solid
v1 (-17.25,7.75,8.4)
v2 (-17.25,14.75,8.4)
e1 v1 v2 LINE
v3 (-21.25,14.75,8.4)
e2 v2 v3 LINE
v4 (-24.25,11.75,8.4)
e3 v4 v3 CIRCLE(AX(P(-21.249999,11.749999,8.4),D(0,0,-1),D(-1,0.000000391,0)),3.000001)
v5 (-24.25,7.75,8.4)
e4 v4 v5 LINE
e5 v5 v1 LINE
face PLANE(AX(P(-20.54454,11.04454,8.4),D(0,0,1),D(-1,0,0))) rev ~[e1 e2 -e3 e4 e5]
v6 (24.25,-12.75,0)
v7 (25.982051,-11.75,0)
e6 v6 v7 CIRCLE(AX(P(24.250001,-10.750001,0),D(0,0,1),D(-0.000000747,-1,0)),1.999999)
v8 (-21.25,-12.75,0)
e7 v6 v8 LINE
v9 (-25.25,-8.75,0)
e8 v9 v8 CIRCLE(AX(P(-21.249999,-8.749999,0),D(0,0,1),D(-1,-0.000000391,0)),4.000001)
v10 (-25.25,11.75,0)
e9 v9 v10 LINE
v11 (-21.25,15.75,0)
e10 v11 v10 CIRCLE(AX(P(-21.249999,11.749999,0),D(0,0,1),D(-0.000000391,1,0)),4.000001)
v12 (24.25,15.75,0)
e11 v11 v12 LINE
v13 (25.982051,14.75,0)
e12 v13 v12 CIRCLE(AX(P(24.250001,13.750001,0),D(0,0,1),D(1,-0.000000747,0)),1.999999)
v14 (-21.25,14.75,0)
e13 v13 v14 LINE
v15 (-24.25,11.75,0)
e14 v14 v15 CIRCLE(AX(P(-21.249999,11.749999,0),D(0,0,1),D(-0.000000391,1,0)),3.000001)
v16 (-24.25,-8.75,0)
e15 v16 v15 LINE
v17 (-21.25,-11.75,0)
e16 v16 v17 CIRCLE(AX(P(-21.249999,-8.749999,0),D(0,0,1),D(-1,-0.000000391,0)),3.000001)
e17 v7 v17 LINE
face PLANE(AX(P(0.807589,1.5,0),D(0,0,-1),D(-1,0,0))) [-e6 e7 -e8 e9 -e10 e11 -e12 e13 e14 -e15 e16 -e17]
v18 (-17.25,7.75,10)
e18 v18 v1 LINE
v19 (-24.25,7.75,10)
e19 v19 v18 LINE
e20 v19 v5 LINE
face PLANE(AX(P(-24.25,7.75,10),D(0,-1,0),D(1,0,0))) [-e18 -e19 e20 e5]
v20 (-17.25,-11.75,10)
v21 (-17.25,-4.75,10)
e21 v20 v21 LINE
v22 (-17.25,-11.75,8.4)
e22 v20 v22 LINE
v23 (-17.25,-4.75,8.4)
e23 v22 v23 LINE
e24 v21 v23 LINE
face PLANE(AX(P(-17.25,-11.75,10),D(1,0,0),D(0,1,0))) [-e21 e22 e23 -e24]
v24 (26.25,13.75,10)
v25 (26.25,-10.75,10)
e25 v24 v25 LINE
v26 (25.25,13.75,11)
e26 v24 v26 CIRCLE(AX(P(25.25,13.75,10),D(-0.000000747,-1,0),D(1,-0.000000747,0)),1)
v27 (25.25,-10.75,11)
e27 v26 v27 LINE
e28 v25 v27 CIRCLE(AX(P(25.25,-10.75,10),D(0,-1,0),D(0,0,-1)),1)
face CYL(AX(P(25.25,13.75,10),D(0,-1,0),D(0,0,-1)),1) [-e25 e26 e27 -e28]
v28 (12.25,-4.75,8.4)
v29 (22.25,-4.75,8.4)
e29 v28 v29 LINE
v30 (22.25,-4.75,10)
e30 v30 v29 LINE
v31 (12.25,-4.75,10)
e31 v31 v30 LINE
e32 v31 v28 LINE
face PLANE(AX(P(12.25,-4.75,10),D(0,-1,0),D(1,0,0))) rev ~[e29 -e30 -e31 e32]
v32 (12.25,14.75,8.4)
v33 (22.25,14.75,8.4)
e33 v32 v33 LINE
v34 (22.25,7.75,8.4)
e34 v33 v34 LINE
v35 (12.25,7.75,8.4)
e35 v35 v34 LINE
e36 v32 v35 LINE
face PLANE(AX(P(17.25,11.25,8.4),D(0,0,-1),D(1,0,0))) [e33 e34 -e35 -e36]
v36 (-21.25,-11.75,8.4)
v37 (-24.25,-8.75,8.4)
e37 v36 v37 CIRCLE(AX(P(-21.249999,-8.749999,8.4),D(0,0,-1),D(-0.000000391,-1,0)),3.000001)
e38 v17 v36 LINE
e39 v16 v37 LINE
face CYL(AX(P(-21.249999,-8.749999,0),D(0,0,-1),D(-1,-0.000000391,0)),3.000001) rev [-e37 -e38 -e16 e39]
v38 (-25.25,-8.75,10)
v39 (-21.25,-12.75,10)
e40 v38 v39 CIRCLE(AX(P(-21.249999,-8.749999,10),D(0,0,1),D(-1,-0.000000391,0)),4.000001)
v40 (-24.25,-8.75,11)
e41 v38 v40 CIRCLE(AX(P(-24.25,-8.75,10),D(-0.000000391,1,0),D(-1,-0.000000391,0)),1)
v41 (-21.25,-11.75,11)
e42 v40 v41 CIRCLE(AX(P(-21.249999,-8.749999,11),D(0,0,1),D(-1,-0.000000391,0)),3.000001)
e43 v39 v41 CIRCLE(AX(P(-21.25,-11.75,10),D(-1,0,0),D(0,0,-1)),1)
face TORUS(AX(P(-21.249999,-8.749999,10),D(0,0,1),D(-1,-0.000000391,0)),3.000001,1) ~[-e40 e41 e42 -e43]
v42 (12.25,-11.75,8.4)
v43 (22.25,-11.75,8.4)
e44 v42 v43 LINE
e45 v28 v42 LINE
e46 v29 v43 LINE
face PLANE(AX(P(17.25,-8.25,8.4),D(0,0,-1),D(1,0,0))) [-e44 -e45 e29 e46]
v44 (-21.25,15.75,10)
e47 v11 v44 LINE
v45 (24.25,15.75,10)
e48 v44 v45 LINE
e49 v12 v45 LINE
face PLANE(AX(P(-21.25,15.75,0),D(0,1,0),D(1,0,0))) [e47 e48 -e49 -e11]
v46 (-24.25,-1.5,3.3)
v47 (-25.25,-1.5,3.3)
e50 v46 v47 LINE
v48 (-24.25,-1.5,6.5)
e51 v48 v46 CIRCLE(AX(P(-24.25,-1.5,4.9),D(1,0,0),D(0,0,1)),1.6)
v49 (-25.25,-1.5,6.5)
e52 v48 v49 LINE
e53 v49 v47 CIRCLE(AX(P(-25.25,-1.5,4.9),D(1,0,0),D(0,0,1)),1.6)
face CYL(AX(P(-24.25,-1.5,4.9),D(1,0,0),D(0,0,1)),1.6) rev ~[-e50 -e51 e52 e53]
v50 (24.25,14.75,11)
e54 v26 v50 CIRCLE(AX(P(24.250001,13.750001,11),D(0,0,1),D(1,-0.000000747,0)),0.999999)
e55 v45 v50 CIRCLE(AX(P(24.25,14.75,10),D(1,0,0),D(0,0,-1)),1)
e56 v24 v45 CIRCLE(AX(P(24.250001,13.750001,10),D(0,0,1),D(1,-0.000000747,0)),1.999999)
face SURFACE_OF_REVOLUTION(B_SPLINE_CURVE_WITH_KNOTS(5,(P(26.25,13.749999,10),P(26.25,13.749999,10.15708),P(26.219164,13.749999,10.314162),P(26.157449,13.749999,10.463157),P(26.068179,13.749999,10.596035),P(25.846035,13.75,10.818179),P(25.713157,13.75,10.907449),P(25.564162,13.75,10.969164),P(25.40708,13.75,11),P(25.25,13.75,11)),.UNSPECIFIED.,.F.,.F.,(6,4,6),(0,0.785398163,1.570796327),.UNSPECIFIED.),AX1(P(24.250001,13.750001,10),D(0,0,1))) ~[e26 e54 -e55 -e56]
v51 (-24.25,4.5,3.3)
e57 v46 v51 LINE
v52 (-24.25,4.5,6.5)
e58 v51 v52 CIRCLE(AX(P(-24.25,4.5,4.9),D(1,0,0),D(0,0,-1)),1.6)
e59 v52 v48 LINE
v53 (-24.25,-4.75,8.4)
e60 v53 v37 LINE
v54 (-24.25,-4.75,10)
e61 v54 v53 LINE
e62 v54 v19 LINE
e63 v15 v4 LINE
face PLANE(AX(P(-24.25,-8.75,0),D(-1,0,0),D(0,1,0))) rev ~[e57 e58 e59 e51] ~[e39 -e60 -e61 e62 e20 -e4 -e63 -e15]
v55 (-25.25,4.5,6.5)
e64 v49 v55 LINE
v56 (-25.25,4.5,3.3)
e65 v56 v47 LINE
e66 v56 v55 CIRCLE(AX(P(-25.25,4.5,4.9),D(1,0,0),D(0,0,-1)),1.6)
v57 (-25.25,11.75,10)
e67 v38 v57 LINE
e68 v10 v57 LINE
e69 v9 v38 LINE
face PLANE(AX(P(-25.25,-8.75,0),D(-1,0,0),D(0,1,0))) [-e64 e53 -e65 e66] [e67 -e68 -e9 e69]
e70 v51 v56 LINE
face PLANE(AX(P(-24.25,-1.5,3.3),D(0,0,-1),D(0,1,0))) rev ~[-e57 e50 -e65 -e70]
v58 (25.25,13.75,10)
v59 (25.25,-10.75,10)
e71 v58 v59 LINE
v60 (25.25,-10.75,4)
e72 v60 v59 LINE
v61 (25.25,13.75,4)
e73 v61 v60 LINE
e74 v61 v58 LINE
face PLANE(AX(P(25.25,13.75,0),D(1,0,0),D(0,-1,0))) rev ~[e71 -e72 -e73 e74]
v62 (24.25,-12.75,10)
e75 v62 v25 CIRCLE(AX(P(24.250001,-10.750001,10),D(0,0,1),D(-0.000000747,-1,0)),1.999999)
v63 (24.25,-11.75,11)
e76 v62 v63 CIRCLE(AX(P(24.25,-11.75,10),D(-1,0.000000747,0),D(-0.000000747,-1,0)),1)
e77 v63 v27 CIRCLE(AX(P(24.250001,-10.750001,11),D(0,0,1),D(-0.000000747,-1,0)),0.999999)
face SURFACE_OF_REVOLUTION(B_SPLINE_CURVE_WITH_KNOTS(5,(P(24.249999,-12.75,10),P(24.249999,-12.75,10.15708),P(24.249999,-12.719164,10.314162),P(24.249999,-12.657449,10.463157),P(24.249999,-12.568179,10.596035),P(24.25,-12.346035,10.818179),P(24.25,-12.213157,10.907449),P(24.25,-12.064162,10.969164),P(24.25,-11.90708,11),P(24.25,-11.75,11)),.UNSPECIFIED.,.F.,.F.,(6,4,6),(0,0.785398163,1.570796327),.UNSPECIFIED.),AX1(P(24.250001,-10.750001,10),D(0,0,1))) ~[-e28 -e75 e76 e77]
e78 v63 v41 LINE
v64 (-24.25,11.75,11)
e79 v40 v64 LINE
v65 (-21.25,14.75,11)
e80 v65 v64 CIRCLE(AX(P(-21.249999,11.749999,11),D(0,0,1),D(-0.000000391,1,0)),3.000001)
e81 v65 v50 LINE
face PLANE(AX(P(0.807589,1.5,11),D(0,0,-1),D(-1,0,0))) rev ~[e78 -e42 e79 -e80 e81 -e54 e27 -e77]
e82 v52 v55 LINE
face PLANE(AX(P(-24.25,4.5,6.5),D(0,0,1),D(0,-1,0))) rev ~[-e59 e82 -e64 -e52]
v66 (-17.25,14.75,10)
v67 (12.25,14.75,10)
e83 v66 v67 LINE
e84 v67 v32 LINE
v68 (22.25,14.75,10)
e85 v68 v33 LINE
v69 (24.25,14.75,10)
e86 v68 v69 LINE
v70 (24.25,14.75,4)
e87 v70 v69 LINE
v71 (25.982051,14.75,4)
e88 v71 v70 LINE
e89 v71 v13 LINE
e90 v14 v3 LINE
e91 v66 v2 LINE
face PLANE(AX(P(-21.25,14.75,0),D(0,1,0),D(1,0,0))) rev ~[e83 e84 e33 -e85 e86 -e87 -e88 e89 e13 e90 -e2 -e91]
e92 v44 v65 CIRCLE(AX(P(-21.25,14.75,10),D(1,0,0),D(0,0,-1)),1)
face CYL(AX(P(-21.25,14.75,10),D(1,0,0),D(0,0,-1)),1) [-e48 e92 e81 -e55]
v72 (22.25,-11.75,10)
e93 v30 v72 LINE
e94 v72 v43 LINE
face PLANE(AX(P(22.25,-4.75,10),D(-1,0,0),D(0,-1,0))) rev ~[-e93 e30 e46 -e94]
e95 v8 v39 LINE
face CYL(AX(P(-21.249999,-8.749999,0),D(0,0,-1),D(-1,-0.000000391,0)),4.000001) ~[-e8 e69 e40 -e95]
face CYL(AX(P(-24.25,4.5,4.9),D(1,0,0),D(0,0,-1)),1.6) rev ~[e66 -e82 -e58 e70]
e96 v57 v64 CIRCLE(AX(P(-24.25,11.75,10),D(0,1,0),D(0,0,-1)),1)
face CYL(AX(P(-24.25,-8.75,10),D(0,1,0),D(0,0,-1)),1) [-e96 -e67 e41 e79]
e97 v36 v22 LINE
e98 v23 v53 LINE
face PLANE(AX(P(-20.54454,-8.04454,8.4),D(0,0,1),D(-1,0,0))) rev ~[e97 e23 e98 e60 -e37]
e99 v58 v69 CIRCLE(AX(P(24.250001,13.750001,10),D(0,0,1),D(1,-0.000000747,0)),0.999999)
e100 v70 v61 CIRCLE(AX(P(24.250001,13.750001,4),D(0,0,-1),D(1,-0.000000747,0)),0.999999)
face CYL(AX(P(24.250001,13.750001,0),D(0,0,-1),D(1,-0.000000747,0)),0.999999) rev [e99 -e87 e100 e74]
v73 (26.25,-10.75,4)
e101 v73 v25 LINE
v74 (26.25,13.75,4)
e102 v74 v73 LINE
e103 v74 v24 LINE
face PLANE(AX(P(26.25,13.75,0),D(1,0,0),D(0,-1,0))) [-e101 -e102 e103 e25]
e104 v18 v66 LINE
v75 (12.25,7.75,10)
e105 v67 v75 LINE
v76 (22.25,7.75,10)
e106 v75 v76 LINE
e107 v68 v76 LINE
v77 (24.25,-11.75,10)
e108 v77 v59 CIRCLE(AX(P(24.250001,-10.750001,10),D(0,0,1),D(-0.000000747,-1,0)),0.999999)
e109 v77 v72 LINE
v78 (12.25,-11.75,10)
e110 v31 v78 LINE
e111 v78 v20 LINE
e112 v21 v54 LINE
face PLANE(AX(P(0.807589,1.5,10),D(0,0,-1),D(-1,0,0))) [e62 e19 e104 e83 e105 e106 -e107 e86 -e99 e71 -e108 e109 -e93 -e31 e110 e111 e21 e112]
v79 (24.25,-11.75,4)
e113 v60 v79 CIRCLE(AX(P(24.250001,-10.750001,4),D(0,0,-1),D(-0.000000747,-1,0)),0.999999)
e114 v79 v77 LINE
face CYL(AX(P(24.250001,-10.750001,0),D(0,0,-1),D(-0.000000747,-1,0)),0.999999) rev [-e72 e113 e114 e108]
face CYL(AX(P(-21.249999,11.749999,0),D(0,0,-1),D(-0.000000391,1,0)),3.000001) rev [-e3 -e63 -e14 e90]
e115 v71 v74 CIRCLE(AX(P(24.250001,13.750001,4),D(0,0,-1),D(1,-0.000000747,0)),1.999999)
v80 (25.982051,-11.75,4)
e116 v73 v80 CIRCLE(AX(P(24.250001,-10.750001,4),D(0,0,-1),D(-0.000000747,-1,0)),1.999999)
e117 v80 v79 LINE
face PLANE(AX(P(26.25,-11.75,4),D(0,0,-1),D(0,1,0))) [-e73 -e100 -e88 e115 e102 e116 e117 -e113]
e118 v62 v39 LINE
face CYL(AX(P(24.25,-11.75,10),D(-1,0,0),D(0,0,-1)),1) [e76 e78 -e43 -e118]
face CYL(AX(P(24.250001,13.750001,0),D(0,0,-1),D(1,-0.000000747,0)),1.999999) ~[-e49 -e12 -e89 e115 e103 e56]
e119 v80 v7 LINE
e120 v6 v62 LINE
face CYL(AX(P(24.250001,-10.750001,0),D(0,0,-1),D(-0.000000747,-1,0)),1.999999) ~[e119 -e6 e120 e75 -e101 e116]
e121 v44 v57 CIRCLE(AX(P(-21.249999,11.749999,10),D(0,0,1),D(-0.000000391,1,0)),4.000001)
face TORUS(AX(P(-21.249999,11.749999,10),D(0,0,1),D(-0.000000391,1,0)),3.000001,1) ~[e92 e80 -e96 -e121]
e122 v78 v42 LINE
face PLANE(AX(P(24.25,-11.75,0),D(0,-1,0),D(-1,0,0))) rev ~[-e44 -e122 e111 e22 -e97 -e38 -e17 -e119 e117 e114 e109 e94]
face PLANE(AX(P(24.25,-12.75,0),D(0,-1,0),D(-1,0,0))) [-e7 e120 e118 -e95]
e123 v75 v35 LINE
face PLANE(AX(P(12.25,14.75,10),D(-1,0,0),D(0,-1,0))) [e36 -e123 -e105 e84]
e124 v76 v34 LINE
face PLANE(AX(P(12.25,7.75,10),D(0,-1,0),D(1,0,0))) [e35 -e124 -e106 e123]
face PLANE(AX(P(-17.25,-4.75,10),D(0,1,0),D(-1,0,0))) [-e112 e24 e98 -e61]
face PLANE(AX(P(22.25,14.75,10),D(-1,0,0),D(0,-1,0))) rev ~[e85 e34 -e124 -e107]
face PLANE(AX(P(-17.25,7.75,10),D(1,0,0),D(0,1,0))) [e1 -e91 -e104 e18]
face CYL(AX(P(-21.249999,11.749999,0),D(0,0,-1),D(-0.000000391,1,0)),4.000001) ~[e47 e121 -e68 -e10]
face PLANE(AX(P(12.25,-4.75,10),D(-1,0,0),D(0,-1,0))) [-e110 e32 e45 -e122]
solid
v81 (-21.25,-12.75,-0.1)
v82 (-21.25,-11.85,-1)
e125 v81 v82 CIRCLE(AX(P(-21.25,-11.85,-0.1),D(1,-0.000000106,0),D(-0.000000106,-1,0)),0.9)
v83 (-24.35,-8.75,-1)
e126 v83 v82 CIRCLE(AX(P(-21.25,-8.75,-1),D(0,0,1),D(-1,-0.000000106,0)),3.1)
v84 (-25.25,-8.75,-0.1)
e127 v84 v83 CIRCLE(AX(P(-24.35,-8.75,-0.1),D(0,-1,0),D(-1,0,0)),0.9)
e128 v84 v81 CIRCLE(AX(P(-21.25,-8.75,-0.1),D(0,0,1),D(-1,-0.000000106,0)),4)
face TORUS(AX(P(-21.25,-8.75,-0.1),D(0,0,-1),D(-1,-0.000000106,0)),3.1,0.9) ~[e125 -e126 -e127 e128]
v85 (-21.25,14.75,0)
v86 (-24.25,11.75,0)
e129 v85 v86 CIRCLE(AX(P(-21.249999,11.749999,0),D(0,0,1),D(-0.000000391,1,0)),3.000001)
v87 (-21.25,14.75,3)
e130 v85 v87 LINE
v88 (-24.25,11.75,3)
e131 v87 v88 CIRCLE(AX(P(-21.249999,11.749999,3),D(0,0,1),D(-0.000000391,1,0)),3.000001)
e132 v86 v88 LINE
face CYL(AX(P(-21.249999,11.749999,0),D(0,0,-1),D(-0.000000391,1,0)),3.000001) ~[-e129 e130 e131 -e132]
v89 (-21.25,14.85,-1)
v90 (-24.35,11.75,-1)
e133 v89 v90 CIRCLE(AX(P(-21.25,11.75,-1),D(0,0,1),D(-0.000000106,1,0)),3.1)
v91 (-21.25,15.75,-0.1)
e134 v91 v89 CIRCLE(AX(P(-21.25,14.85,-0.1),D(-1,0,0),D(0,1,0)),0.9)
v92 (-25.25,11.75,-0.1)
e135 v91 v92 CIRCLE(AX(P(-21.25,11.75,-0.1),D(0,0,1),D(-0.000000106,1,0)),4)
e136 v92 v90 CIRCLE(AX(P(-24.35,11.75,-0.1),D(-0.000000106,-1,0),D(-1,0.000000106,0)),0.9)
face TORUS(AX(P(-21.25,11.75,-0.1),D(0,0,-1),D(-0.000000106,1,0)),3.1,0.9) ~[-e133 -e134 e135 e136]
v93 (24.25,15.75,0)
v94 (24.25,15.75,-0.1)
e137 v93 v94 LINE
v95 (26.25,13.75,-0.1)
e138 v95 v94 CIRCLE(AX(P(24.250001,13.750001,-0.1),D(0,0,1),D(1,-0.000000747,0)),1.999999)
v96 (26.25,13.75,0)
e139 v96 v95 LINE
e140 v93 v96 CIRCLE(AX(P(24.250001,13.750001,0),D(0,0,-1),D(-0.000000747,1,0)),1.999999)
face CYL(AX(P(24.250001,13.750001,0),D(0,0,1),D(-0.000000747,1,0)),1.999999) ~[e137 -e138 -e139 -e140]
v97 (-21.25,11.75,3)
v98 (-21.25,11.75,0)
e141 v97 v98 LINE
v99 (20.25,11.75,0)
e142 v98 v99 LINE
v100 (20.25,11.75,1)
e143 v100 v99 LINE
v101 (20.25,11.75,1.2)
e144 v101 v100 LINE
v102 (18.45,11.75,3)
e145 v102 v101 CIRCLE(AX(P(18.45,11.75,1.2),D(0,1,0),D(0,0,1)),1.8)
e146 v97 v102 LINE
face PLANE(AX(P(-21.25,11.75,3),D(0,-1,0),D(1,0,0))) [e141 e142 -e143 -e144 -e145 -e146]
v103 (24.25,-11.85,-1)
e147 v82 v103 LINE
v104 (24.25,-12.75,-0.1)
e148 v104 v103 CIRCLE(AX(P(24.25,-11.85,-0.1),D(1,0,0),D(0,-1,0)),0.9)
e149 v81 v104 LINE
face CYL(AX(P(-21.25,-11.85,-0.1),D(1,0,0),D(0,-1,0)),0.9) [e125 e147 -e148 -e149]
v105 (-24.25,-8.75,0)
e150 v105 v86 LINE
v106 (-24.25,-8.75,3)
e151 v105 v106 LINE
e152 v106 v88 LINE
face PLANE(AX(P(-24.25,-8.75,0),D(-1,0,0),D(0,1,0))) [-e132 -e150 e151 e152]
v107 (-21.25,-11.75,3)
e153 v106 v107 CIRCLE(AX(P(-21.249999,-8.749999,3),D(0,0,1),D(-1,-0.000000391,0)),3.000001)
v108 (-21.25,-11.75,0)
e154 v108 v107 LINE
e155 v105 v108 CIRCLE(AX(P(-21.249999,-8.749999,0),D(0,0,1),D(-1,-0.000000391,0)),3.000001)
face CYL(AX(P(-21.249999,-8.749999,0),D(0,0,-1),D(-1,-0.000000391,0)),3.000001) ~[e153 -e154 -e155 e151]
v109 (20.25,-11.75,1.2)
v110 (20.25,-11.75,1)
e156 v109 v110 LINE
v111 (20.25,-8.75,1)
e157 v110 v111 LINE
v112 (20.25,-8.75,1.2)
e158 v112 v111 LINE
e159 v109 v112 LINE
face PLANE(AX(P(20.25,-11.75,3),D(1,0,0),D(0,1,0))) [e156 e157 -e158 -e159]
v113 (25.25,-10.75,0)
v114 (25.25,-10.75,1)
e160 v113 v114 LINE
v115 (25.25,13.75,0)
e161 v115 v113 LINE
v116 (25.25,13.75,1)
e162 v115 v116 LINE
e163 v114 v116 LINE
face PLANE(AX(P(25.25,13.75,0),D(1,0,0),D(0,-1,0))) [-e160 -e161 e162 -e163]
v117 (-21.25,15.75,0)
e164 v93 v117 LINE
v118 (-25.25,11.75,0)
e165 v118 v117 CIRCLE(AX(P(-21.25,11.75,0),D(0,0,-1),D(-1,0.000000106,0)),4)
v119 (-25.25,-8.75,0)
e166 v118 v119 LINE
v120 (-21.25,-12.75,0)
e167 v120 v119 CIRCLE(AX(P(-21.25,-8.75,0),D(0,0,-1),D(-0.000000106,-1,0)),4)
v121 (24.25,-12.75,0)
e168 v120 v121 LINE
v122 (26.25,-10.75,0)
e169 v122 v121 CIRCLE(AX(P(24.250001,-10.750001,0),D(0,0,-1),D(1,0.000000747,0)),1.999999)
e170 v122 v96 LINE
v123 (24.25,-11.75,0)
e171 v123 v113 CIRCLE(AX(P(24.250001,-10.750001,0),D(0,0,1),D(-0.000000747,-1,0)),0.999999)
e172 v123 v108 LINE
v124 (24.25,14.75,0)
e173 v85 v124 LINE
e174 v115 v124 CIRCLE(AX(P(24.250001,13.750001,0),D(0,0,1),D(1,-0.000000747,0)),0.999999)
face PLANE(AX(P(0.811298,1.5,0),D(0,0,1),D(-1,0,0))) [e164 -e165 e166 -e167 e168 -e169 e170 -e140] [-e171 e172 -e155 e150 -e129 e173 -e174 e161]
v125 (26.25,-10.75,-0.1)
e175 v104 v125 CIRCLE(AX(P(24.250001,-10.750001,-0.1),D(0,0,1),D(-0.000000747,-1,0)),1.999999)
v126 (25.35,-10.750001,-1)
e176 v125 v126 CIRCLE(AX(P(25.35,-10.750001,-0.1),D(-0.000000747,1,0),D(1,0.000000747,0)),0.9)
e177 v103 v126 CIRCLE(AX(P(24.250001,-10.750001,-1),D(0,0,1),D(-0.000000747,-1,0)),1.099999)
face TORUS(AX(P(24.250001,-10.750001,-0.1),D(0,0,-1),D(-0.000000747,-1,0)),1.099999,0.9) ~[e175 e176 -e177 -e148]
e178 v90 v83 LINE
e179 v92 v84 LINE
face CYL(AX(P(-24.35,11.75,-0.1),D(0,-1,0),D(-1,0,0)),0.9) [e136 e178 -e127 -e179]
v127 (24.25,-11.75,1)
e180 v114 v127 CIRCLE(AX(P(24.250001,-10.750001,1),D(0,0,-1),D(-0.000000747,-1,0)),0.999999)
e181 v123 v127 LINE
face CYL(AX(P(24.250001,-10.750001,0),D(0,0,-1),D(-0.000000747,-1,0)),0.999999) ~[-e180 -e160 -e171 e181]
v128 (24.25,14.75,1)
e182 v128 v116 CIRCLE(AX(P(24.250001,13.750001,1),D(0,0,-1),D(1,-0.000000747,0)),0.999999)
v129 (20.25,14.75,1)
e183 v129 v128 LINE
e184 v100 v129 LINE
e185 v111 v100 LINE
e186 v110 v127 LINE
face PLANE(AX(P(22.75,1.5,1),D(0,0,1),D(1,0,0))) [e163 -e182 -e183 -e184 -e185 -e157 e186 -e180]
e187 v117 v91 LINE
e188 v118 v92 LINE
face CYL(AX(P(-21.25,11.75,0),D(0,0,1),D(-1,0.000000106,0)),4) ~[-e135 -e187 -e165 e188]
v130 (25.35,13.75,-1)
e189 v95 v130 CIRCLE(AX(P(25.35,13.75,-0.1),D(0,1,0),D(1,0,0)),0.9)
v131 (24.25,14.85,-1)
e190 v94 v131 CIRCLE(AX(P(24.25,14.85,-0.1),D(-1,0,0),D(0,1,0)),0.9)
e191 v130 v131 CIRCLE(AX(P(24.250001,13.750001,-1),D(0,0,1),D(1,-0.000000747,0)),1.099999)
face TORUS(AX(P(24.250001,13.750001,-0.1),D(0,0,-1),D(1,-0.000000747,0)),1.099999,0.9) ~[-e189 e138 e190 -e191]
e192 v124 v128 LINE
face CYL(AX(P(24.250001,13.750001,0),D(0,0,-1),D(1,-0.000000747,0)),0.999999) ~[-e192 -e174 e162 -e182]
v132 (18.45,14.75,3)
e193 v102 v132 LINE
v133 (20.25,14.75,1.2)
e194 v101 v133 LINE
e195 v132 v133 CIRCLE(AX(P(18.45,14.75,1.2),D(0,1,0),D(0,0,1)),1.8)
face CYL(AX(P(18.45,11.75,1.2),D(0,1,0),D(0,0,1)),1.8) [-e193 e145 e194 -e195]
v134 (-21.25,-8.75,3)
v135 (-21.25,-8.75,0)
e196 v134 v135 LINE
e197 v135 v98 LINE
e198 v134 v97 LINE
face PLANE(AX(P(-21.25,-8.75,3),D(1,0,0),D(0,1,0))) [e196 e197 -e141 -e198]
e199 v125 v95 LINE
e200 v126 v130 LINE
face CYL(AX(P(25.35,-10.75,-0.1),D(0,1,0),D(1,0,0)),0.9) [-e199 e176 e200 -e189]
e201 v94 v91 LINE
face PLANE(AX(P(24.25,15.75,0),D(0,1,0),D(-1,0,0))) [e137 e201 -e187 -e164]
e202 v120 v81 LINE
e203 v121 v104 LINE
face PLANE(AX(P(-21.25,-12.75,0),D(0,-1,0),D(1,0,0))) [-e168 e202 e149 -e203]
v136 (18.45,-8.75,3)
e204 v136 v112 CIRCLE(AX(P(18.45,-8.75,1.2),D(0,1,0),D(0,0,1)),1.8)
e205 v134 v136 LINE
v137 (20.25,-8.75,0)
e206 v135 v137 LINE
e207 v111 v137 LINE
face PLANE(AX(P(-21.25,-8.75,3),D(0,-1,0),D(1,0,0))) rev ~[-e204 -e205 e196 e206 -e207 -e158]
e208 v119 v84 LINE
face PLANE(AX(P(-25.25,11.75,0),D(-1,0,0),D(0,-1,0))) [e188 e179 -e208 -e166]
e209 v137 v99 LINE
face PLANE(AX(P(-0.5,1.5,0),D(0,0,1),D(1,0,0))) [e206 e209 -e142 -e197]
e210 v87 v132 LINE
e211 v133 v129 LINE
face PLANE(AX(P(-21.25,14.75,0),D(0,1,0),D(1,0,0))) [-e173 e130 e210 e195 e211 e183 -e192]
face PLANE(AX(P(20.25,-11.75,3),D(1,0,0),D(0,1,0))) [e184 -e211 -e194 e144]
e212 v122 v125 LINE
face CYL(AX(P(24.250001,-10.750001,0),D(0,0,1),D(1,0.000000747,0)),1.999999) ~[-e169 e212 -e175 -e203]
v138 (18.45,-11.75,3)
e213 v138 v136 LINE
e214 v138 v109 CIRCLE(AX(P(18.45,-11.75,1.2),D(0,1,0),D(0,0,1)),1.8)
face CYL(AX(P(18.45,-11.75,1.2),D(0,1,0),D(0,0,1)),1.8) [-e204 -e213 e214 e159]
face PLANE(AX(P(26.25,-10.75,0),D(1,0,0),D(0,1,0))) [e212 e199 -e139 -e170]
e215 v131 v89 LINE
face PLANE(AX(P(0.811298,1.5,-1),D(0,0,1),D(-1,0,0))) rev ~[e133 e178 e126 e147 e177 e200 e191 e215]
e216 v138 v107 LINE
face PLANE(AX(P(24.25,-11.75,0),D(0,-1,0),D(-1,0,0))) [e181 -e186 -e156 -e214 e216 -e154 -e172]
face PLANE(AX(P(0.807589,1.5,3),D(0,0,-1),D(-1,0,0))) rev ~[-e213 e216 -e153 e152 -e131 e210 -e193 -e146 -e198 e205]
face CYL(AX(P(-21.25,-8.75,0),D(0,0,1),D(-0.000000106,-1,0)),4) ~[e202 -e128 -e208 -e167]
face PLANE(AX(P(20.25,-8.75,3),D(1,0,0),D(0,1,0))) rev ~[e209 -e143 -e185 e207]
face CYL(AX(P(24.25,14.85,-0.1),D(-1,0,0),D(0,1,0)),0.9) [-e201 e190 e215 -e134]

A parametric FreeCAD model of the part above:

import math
import FreeCAD as App
import Part
import Sketcher
from FreeCAD import Vector
Q = App.Units.Quantity


def edges_at(feature, points):
    """Names of the edges that pass closest to the given points."""
    edges = feature.Shape.Edges
    near = lambda p: min(range(len(edges)), key=lambda i: edges[i].distToShape(Part.Vertex(*p))[0])
    return sorted({f"Edge{near(p) + 1}" for p in points})


def faces_at(feature, points):
    """Names of the faces that lie closest to the given points."""
    faces = feature.Shape.Faces
    near = lambda p: min(range(len(faces)), key=lambda i: faces[i].distToShape(Part.Vertex(*p))[0])
    return sorted({f"Face{near(p) + 1}" for p in points})

doc = App.newDocument("Part")
body = doc.addObject("PartDesign::Body", "Body")

# Sketch on XY plane
sketch1 = body.newObject("Sketcher::SketchObject", "Sketch")
sketch1.AttachmentSupport = (doc.getObject("XY_Plane"), [""])
sketch1.MapMode = "FlatFace"
sketch1.addGeometry(Part.LineSegment(Vector(24.2, 14.8, 0), Vector(-21.2, 14.8, 0)), False)
sketch1.addGeometry(Part.ArcOfCircle(Part.Circle(Vector(-21.2, 11.7, 0), Vector(0, 0, 1), 3), math.radians(90), math.radians(180)), False)
sketch1.addGeometry(Part.LineSegment(Vector(-24.2, 11.8, 0), Vector(-24.2, -8.8, 0)), False)
sketch1.addGeometry(Part.ArcOfCircle(Part.Circle(Vector(-21.2, -8.7, 0), Vector(0, 0, 1), 3), math.radians(-180), math.radians(-90)), False)
sketch1.addGeometry(Part.LineSegment(Vector(-21.2, -11.8, 0), Vector(24.2, -11.8, 0)), False)
sketch1.addGeometry(Part.ArcOfCircle(Part.Circle(Vector(24.3, -10.8, 0), Vector(0, 0, 1), 1), math.radians(-90), math.radians(0)), False)
sketch1.addGeometry(Part.LineSegment(Vector(25.2, -10.8, 0), Vector(25.2, 13.8, 0)), False)
sketch1.addGeometry(Part.ArcOfCircle(Part.Circle(Vector(24.3, 13.8, 0), Vector(0, 0, 1), 1), math.radians(0), math.radians(90)), False)
sketch1.addConstraint(Sketcher.Constraint("Tangent", 0, 2, 1, 1))
sketch1.addConstraint(Sketcher.Constraint("Tangent", 1, 2, 2, 1))
sketch1.addConstraint(Sketcher.Constraint("Tangent", 2, 2, 3, 1))
sketch1.addConstraint(Sketcher.Constraint("Tangent", 3, 2, 4, 1))
sketch1.addConstraint(Sketcher.Constraint("Tangent", 4, 2, 5, 1))
sketch1.addConstraint(Sketcher.Constraint("Tangent", 5, 2, 6, 1))
sketch1.addConstraint(Sketcher.Constraint("Tangent", 6, 2, 7, 1))
sketch1.addConstraint(Sketcher.Constraint("Tangent", 7, 2, 0, 1))
sketch1.addConstraint(Sketcher.Constraint("Horizontal", 0))
sketch1.addConstraint(Sketcher.Constraint("Vertical", 2))
sketch1.addConstraint(Sketcher.Constraint("Horizontal", 4))
sketch1.addConstraint(Sketcher.Constraint("Vertical", 6))
sketch1.addConstraint(Sketcher.Constraint("Equal", 1, 3))
sketch1.addConstraint(Sketcher.Constraint("Equal", 5, 7))
sketch1.addConstraint(Sketcher.Constraint("Symmetric", 1, 2, 4, 2, -1, 1))
sketch1.addConstraint(Sketcher.Constraint("Radius", 1, Q("3.000001 mm")))
sketch1.addConstraint(Sketcher.Constraint("Radius", 5, Q("0.999999 mm")))
sketch1.addConstraint(Sketcher.Constraint("DistanceX", 0, 2, 0, 1, Q("45.5 mm")))
sketch1.addConstraint(Sketcher.Constraint("DistanceY", 2, 2, 2, 1, Q("20.5 mm")))
pad1 = body.newObject("PartDesign::Pad", "Pad")
pad1.Profile = sketch1
pad1.Length = 10
doc.recompute()

thickness = body.newObject("PartDesign::Thickness", "Thickness")
thickness.Base = (pad1, faces_at(pad1, [(0.5, 1.5, 0)]))
thickness.Value = 1
thickness.Reversed = False
thickness.Join = "Arc"

# Sketch on XY plane
sketch2 = body.newObject("Sketcher::SketchObject", "Sketch001")
sketch2.AttachmentSupport = (doc.getObject("XY_Plane"), [""])
sketch2.MapMode = "FlatFace"
sketch2.AttachmentOffset = App.Placement(Vector(0, 0, 10), App.Rotation())
sketch2.addGeometry(Part.LineSegment(Vector(-17.2, -11.8, 0), Vector(-21.2, -11.8, 0)), False)
sketch2.addGeometry(Part.ArcOfCircle(Part.Circle(Vector(-21.2, -8.7, 0), Vector(0, 0, 1), 3), math.radians(-180), math.radians(-90)), False)
sketch2.addGeometry(Part.LineSegment(Vector(-24.2, -8.8, 0), Vector(-24.2, -4.8, 0)), False)
sketch2.addGeometry(Part.LineSegment(Vector(-24.2, -4.8, 0), Vector(-17.2, -4.8, 0)), False)
sketch2.addGeometry(Part.LineSegment(Vector(-17.2, -4.8, 0), Vector(-17.2, -11.8, 0)), False)
sketch2.addGeometry(Part.LineSegment(Vector(-17.2, 7.8, 0), Vector(-24.2, 7.8, 0)), False)
sketch2.addGeometry(Part.LineSegment(Vector(-24.2, 7.8, 0), Vector(-24.2, 11.8, 0)), False)
sketch2.addGeometry(Part.ArcOfCircle(Part.Circle(Vector(-21.2, 11.7, 0), Vector(0, 0, 1), 3), math.radians(90), math.radians(180)), False)
sketch2.addGeometry(Part.LineSegment(Vector(-21.2, 14.8, 0), Vector(-17.2, 14.8, 0)), False)
sketch2.addGeometry(Part.LineSegment(Vector(-17.2, 14.8, 0), Vector(-17.2, 7.8, 0)), False)
sketch2.addGeometry(Part.LineSegment(Vector(12.2, 7.8, 0), Vector(12.2, 14.8, 0)), False)
sketch2.addGeometry(Part.LineSegment(Vector(12.2, 14.8, 0), Vector(22.2, 14.8, 0)), False)
sketch2.addGeometry(Part.LineSegment(Vector(22.2, 14.8, 0), Vector(22.2, 7.8, 0)), False)
sketch2.addGeometry(Part.LineSegment(Vector(22.2, 7.8, 0), Vector(12.2, 7.8, 0)), False)
sketch2.addGeometry(Part.LineSegment(Vector(12.2, -11.8, 0), Vector(12.2, -4.8, 0)), False)
sketch2.addGeometry(Part.LineSegment(Vector(12.2, -4.8, 0), Vector(22.2, -4.8, 0)), False)
sketch2.addGeometry(Part.LineSegment(Vector(22.2, -4.8, 0), Vector(22.2, -11.8, 0)), False)
sketch2.addGeometry(Part.LineSegment(Vector(22.2, -11.8, 0), Vector(12.2, -11.8, 0)), False)
sketch2.addConstraint(Sketcher.Constraint("Tangent", 0, 2, 1, 2))
sketch2.addConstraint(Sketcher.Constraint("Tangent", 1, 1, 2, 1))
sketch2.addConstraint(Sketcher.Constraint("Coincident", 2, 2, 3, 1))
sketch2.addConstraint(Sketcher.Constraint("Coincident", 3, 2, 4, 1))
sketch2.addConstraint(Sketcher.Constraint("Coincident", 4, 2, 0, 1))
sketch2.addConstraint(Sketcher.Constraint("Coincident", 5, 2, 6, 1))
sketch2.addConstraint(Sketcher.Constraint("Tangent", 6, 2, 7, 2))
sketch2.addConstraint(Sketcher.Constraint("Tangent", 7, 1, 8, 1))
sketch2.addConstraint(Sketcher.Constraint("Coincident", 8, 2, 9, 1))
sketch2.addConstraint(Sketcher.Constraint("Coincident", 9, 2, 5, 1))
sketch2.addConstraint(Sketcher.Constraint("Coincident", 10, 2, 11, 1))
sketch2.addConstraint(Sketcher.Constraint("Coincident", 11, 2, 12, 1))
sketch2.addConstraint(Sketcher.Constraint("Coincident", 12, 2, 13, 1))
sketch2.addConstraint(Sketcher.Constraint("Coincident", 13, 2, 10, 1))
sketch2.addConstraint(Sketcher.Constraint("Coincident", 14, 2, 15, 1))
sketch2.addConstraint(Sketcher.Constraint("Coincident", 15, 2, 16, 1))
sketch2.addConstraint(Sketcher.Constraint("Coincident", 16, 2, 17, 1))
sketch2.addConstraint(Sketcher.Constraint("Coincident", 17, 2, 14, 1))
sketch2.addConstraint(Sketcher.Constraint("Horizontal", 0))
sketch2.addConstraint(Sketcher.Constraint("Vertical", 2))
sketch2.addConstraint(Sketcher.Constraint("Horizontal", 3))
sketch2.addConstraint(Sketcher.Constraint("Vertical", 4))
sketch2.addConstraint(Sketcher.Constraint("Horizontal", 5))
sketch2.addConstraint(Sketcher.Constraint("Vertical", 6))
sketch2.addConstraint(Sketcher.Constraint("Horizontal", 8))
sketch2.addConstraint(Sketcher.Constraint("Vertical", 9))
sketch2.addConstraint(Sketcher.Constraint("Vertical", 10))
sketch2.addConstraint(Sketcher.Constraint("Horizontal", 11))
sketch2.addConstraint(Sketcher.Constraint("Vertical", 12))
sketch2.addConstraint(Sketcher.Constraint("Horizontal", 13))
sketch2.addConstraint(Sketcher.Constraint("Vertical", 14))
sketch2.addConstraint(Sketcher.Constraint("Horizontal", 15))
sketch2.addConstraint(Sketcher.Constraint("Vertical", 16))
sketch2.addConstraint(Sketcher.Constraint("Horizontal", 17))
sketch2.addConstraint(Sketcher.Constraint("Equal", 1, 7))
sketch2.addConstraint(Sketcher.Constraint("Horizontal", 8, 2, 10, 2))
sketch2.addConstraint(Sketcher.Constraint("Horizontal", 9, 2, 12, 2))
sketch2.addConstraint(Sketcher.Constraint("Horizontal", 3, 2, 14, 2))
sketch2.addConstraint(Sketcher.Constraint("Horizontal", 4, 2, 16, 2))
sketch2.addConstraint(Sketcher.Constraint("Vertical", 1, 3, 7, 3))
sketch2.addConstraint(Sketcher.Constraint("Vertical", 4, 2, 8, 2))
sketch2.addConstraint(Sketcher.Constraint("Vertical", 13, 2, 14, 2))
sketch2.addConstraint(Sketcher.Constraint("Vertical", 12, 2, 15, 2))
sketch2.addConstraint(Sketcher.Constraint("Equal", 8, 2))
sketch2.addConstraint(Sketcher.Constraint("Equal", 2, 6))
sketch2.addConstraint(Sketcher.Constraint("Radius", 1, Q("3.000001 mm")))
sketch2.addConstraint(Sketcher.Constraint("DistanceX", 0, 2, 0, 1, Q("4 mm")))
sketch2.addConstraint(Sketcher.Constraint("DistanceX", 11, 1, 11, 2, Q("10 mm")))
sketch2.addConstraint(Sketcher.Constraint("DistanceY", 0, 2, 7, 3, Q("23.499999 mm")))
sketch2.addConstraint(Sketcher.Constraint("DistanceX", 8, 2, 10, 2, Q("29.5 mm")))
sketch2.addConstraint(Sketcher.Constraint("DistanceX", 1, 3, -1, 1, Q("21.249999 mm")))
sketch2.addConstraint(Sketcher.Constraint("DistanceY", 1, 3, -1, 1, Q("8.749999 mm")))
pad2 = body.newObject("PartDesign::Pad", "Pad001")
pad2.Profile = sketch2
pad2.Length = 1.6
pad2.Reversed = True

# Sketch on YZ plane
sketch3 = body.newObject("Sketcher::SketchObject", "Sketch002")
sketch3.AttachmentSupport = (doc.getObject("YZ_Plane"), [""])
sketch3.MapMode = "FlatFace"
sketch3.AttachmentOffset = App.Placement(Vector(0, 0, 25.25), App.Rotation())
sketch3.addGeometry(Part.LineSegment(Vector(13.8, 4, 0), Vector(13.8, 0, 0)), False)
sketch3.addGeometry(Part.LineSegment(Vector(13.8, 0, 0), Vector(-10.8, 0, 0)), False)
sketch3.addGeometry(Part.LineSegment(Vector(-10.8, 0, 0), Vector(-10.8, 4, 0)), False)
sketch3.addGeometry(Part.LineSegment(Vector(-10.8, 4, 0), Vector(13.8, 4, 0)), False)
sketch3.addConstraint(Sketcher.Constraint("Coincident", 0, 2, 1, 1))
sketch3.addConstraint(Sketcher.Constraint("Coincident", 1, 2, 2, 1))
sketch3.addConstraint(Sketcher.Constraint("Coincident", 2, 2, 3, 1))
sketch3.addConstraint(Sketcher.Constraint("Coincident", 3, 2, 0, 1))
sketch3.addConstraint(Sketcher.Constraint("Vertical", 0))
sketch3.addConstraint(Sketcher.Constraint("Horizontal", 1))
sketch3.addConstraint(Sketcher.Constraint("Vertical", 2))
sketch3.addConstraint(Sketcher.Constraint("Horizontal", 3))
sketch3.addConstraint(Sketcher.Constraint("PointOnObject", 0, 2, -1))
sketch3.addConstraint(Sketcher.Constraint("DistanceY", 0, 2, 0, 1, Q("4 mm")))
sketch3.addConstraint(Sketcher.Constraint("DistanceX", 1, 2, 1, 1, Q("24.5 mm")))
sketch3.addConstraint(Sketcher.Constraint("DistanceX", -1, 1, 0, 2, Q("13.75 mm")))
pocket1 = body.newObject("PartDesign::Pocket", "Pocket")
pocket1.Profile = sketch3
pocket1.Length = 1
pocket1.Reversed = True

# Sketch on YZ plane
sketch4 = body.newObject("Sketcher::SketchObject", "Sketch003")
sketch4.AttachmentSupport = (doc.getObject("YZ_Plane"), [""])
sketch4.MapMode = "FlatFace"
sketch4.AttachmentOffset = App.Placement(Vector(0, 0, -24.25), App.Rotation())
sketch4.addGeometry(Part.ArcOfCircle(Part.Circle(Vector(-1.5, 4.9, 0), Vector(0, 0, 1), 1.6), math.radians(90), math.radians(270)), False)
sketch4.addGeometry(Part.LineSegment(Vector(-1.5, 3.3, 0), Vector(4.5, 3.3, 0)), False)
sketch4.addGeometry(Part.ArcOfCircle(Part.Circle(Vector(4.5, 4.9, 0), Vector(0, 0, 1), 1.6), math.radians(-90), math.radians(90)), False)
sketch4.addGeometry(Part.LineSegment(Vector(4.5, 6.5, 0), Vector(-1.5, 6.5, 0)), False)
sketch4.addConstraint(Sketcher.Constraint("Tangent", 0, 2, 1, 1))
sketch4.addConstraint(Sketcher.Constraint("Tangent", 1, 2, 2, 1))
sketch4.addConstraint(Sketcher.Constraint("Tangent", 2, 2, 3, 1))
sketch4.addConstraint(Sketcher.Constraint("Tangent", 3, 2, 0, 1))
sketch4.addConstraint(Sketcher.Constraint("Horizontal", 1))
sketch4.addConstraint(Sketcher.Constraint("Horizontal", 3))
sketch4.addConstraint(Sketcher.Constraint("Radius", 0, Q("1.6 mm")))
sketch4.addConstraint(Sketcher.Constraint("DistanceX", 1, 1, 1, 2, Q("6 mm")))
sketch4.addConstraint(Sketcher.Constraint("DistanceX", 0, 3, -1, 1, Q("1.5 mm")))
sketch4.addConstraint(Sketcher.Constraint("DistanceY", -1, 1, 0, 3, Q("4.9 mm")))
pocket2 = body.newObject("PartDesign::Pocket", "Pocket001")
pocket2.Profile = sketch4
pocket2.Length = 5

# Sketch on YZ plane
sketch5 = body.newObject("Sketcher::SketchObject", "Sketch004")
sketch5.AttachmentSupport = (doc.getObject("YZ_Plane"), [""])
sketch5.MapMode = "FlatFace"
sketch5.AttachmentOffset = App.Placement(Vector(0, 0, 26.25), App.Rotation())
sketch5.addGeometry(Part.LineSegment(Vector(-11.8, 4, 0), Vector(-11.8, 0, 0)), False)
sketch5.addGeometry(Part.LineSegment(Vector(-11.8, 0, 0), Vector(14.8, 0, 0)), False)
sketch5.addGeometry(Part.LineSegment(Vector(14.8, 0, 0), Vector(14.8, 4, 0)), False)
sketch5.addGeometry(Part.LineSegment(Vector(14.8, 4, 0), Vector(-11.8, 4, 0)), False)
sketch5.addConstraint(Sketcher.Constraint("Coincident", 0, 2, 1, 1))
sketch5.addConstraint(Sketcher.Constraint("Coincident", 1, 2, 2, 1))
sketch5.addConstraint(Sketcher.Constraint("Coincident", 2, 2, 3, 1))
sketch5.addConstraint(Sketcher.Constraint("Coincident", 3, 2, 0, 1))
sketch5.addConstraint(Sketcher.Constraint("Vertical", 0))
sketch5.addConstraint(Sketcher.Constraint("Horizontal", 1))
sketch5.addConstraint(Sketcher.Constraint("Vertical", 2))
sketch5.addConstraint(Sketcher.Constraint("Horizontal", 3))
sketch5.addConstraint(Sketcher.Constraint("PointOnObject", 0, 2, -1))
sketch5.addConstraint(Sketcher.Constraint("DistanceY", 0, 2, 0, 1, Q("4 mm")))
sketch5.addConstraint(Sketcher.Constraint("DistanceX", 1, 1, 1, 2, Q("26.5 mm")))
sketch5.addConstraint(Sketcher.Constraint("DistanceX", 0, 2, -1, 1, Q("11.75 mm")))
pocket3 = body.newObject("PartDesign::Pocket", "Pocket002")
pocket3.Profile = sketch5
pocket3.Length = 5
body2 = doc.addObject("PartDesign::Body", "Body001")

# Sketch on XY plane
sketch6 = body2.newObject("Sketcher::SketchObject", "Sketch005")
sketch6.AttachmentSupport = (doc.getObject("XY_Plane001"), [""])
sketch6.MapMode = "FlatFace"
sketch6.addGeometry(Part.LineSegment(Vector(24.2, 14.8, 0), Vector(-21.2, 14.8, 0)), False)
sketch6.addGeometry(Part.ArcOfCircle(Part.Circle(Vector(-21.2, 11.7, 0), Vector(0, 0, 1), 3), math.radians(90), math.radians(180)), False)
sketch6.addGeometry(Part.LineSegment(Vector(-24.2, 11.8, 0), Vector(-24.2, -8.8, 0)), False)
sketch6.addGeometry(Part.ArcOfCircle(Part.Circle(Vector(-21.2, -8.7, 0), Vector(0, 0, 1), 3), math.radians(-180), math.radians(-90)), False)
sketch6.addGeometry(Part.LineSegment(Vector(-21.2, -11.8, 0), Vector(24.2, -11.8, 0)), False)
sketch6.addGeometry(Part.ArcOfCircle(Part.Circle(Vector(24.3, -10.8, 0), Vector(0, 0, 1), 1), math.radians(-90), math.radians(0)), False)
sketch6.addGeometry(Part.LineSegment(Vector(25.2, -10.8, 0), Vector(25.2, 13.8, 0)), False)
sketch6.addGeometry(Part.ArcOfCircle(Part.Circle(Vector(24.3, 13.8, 0), Vector(0, 0, 1), 1), math.radians(0), math.radians(90)), False)
sketch6.addConstraint(Sketcher.Constraint("Tangent", 0, 2, 1, 1))
sketch6.addConstraint(Sketcher.Constraint("Tangent", 1, 2, 2, 1))
sketch6.addConstraint(Sketcher.Constraint("Tangent", 2, 2, 3, 1))
sketch6.addConstraint(Sketcher.Constraint("Tangent", 3, 2, 4, 1))
sketch6.addConstraint(Sketcher.Constraint("Tangent", 4, 2, 5, 1))
sketch6.addConstraint(Sketcher.Constraint("Tangent", 5, 2, 6, 1))
sketch6.addConstraint(Sketcher.Constraint("Tangent", 6, 2, 7, 1))
sketch6.addConstraint(Sketcher.Constraint("Tangent", 7, 2, 0, 1))
sketch6.addConstraint(Sketcher.Constraint("Horizontal", 0))
sketch6.addConstraint(Sketcher.Constraint("Vertical", 2))
sketch6.addConstraint(Sketcher.Constraint("Horizontal", 4))
sketch6.addConstraint(Sketcher.Constraint("Vertical", 6))
sketch6.addConstraint(Sketcher.Constraint("Equal", 1, 3))
sketch6.addConstraint(Sketcher.Constraint("Equal", 5, 7))
sketch6.addConstraint(Sketcher.Constraint("Symmetric", 1, 2, 4, 2, -1, 1))
sketch6.addConstraint(Sketcher.Constraint("Radius", 1, Q("3.000001 mm")))
sketch6.addConstraint(Sketcher.Constraint("Radius", 5, Q("0.999999 mm")))
sketch6.addConstraint(Sketcher.Constraint("DistanceX", 0, 2, 0, 1, Q("45.5 mm")))
sketch6.addConstraint(Sketcher.Constraint("DistanceY", 2, 2, 2, 1, Q("20.5 mm")))
pad3 = body2.newObject("PartDesign::Pad", "Pad002")
pad3.Profile = sketch6
pad3.Length = 3

# Sketch on XY plane
sketch7 = body2.newObject("Sketcher::SketchObject", "Sketch006")
sketch7.AttachmentSupport = (doc.getObject("XY_Plane001"), [""])
sketch7.MapMode = "FlatFace"
sketch7.addGeometry(Part.LineSegment(Vector(24.2, -12.8, 0), Vector(-21.2, -12.8, 0)), False)
sketch7.addGeometry(Part.ArcOfCircle(Part.Circle(Vector(-21.2, -8.7, 0), Vector(0, 0, 1), 4), math.radians(-180), math.radians(-90)), False)
sketch7.addGeometry(Part.LineSegment(Vector(-25.2, -8.8, 0), Vector(-25.2, 11.8, 0)), False)
sketch7.addGeometry(Part.ArcOfCircle(Part.Circle(Vector(-21.2, 11.7, 0), Vector(0, 0, 1), 4), math.radians(90), math.radians(180)), False)
sketch7.addGeometry(Part.LineSegment(Vector(-21.2, 15.8, 0), Vector(24.2, 15.8, 0)), False)
sketch7.addGeometry(Part.ArcOfCircle(Part.Circle(Vector(24.3, 13.8, 0), Vector(0, 0, 1), 2), math.radians(0), math.radians(90)), False)
sketch7.addGeometry(Part.LineSegment(Vector(26.2, 13.8, 0), Vector(26.2, -10.8, 0)), False)
sketch7.addGeometry(Part.ArcOfCircle(Part.Circle(Vector(24.3, -10.8, 0), Vector(0, 0, 1), 2), math.radians(-90), math.radians(0)), False)
sketch7.addConstraint(Sketcher.Constraint("Tangent", 0, 2, 1, 2))
sketch7.addConstraint(Sketcher.Constraint("Tangent", 1, 1, 2, 1))
sketch7.addConstraint(Sketcher.Constraint("Tangent", 2, 2, 3, 2))
sketch7.addConstraint(Sketcher.Constraint("Tangent", 3, 1, 4, 1))
sketch7.addConstraint(Sketcher.Constraint("Tangent", 4, 2, 5, 2))
sketch7.addConstraint(Sketcher.Constraint("Tangent", 5, 1, 6, 1))
sketch7.addConstraint(Sketcher.Constraint("Tangent", 6, 2, 7, 2))
sketch7.addConstraint(Sketcher.Constraint("Tangent", 7, 1, 0, 1))
sketch7.addConstraint(Sketcher.Constraint("Horizontal", 0))
sketch7.addConstraint(Sketcher.Constraint("Vertical", 2))
sketch7.addConstraint(Sketcher.Constraint("Horizontal", 4))
sketch7.addConstraint(Sketcher.Constraint("Vertical", 6))
sketch7.addConstraint(Sketcher.Constraint("Equal", 1, 3))
sketch7.addConstraint(Sketcher.Constraint("Equal", 5, 7))
sketch7.addConstraint(Sketcher.Constraint("Radius", 1, Q("4 mm")))
sketch7.addConstraint(Sketcher.Constraint("Radius", 5, Q("1.999999 mm")))
sketch7.addConstraint(Sketcher.Constraint("DistanceX", 0, 2, 0, 1, Q("45.5 mm")))
sketch7.addConstraint(Sketcher.Constraint("DistanceY", 2, 1, 2, 2, Q("20.5 mm")))
sketch7.addConstraint(Sketcher.Constraint("DistanceX", 1, 3, -1, 1, Q("21.25 mm")))
sketch7.addConstraint(Sketcher.Constraint("DistanceY", 1, 3, -1, 1, Q("8.75 mm")))
pad4 = body2.newObject("PartDesign::Pad", "Pad003")
pad4.Profile = sketch7
pad4.Length = 1
pad4.Reversed = True

# Sketch on XY plane
sketch8 = body2.newObject("Sketcher::SketchObject", "Sketch007")
sketch8.AttachmentSupport = (doc.getObject("XY_Plane001"), [""])
sketch8.MapMode = "FlatFace"
sketch8.AttachmentOffset = App.Placement(Vector(0, 0, 3), App.Rotation())
sketch8.addGeometry(Part.LineSegment(Vector(-21, 12, 0), Vector(-21, -9, 0)), False)
sketch8.addGeometry(Part.LineSegment(Vector(-21, -9, 0), Vector(20, -9, 0)), False)
sketch8.addGeometry(Part.LineSegment(Vector(20, -9, 0), Vector(20, 12, 0)), False)
sketch8.addGeometry(Part.LineSegment(Vector(20, 12, 0), Vector(-21, 12, 0)), False)
sketch8.addConstraint(Sketcher.Constraint("Coincident", 0, 2, 1, 1))
sketch8.addConstraint(Sketcher.Constraint("Coincident", 1, 2, 2, 1))
sketch8.addConstraint(Sketcher.Constraint("Coincident", 2, 2, 3, 1))
sketch8.addConstraint(Sketcher.Constraint("Coincident", 3, 2, 0, 1))
sketch8.addConstraint(Sketcher.Constraint("Vertical", 0))
sketch8.addConstraint(Sketcher.Constraint("Horizontal", 1))
sketch8.addConstraint(Sketcher.Constraint("Vertical", 2))
sketch8.addConstraint(Sketcher.Constraint("Horizontal", 3))
sketch8.addConstraint(Sketcher.Constraint("DistanceX", 1, 1, 1, 2, Q("41.5 mm")))
sketch8.addConstraint(Sketcher.Constraint("DistanceY", 0, 2, 0, 1, Q("20.5 mm")))
sketch8.addConstraint(Sketcher.Constraint("DistanceX", 0, 2, -1, 1, Q("21.25 mm")))
sketch8.addConstraint(Sketcher.Constraint("DistanceY", 0, 2, -1, 1, Q("8.75 mm")))
pocket4 = body2.newObject("PartDesign::Pocket", "Pocket003")
pocket4.Profile = sketch8
pocket4.Length = 3

# Sketch on XY plane
sketch9 = body2.newObject("Sketcher::SketchObject", "Sketch008")
sketch9.AttachmentSupport = (doc.getObject("XY_Plane001"), [""])
sketch9.MapMode = "FlatFace"
sketch9.AttachmentOffset = App.Placement(Vector(0, 0, 3), App.Rotation())
sketch9.addGeometry(Part.LineSegment(Vector(20, 15, 0), Vector(20, -12, 0)), False)
sketch9.addGeometry(Part.LineSegment(Vector(20, -12, 0), Vector(25, -12, 0)), False)
sketch9.addGeometry(Part.LineSegment(Vector(25, -12, 0), Vector(25, 15, 0)), False)
sketch9.addGeometry(Part.LineSegment(Vector(25, 15, 0), Vector(20, 15, 0)), False)
sketch9.addConstraint(Sketcher.Constraint("Coincident", 0, 2, 1, 1))
sketch9.addConstraint(Sketcher.Constraint("Coincident", 1, 2, 2, 1))
sketch9.addConstraint(Sketcher.Constraint("Coincident", 2, 2, 3, 1))
sketch9.addConstraint(Sketcher.Constraint("Coincident", 3, 2, 0, 1))
sketch9.addConstraint(Sketcher.Constraint("Vertical", 0))
sketch9.addConstraint(Sketcher.Constraint("Horizontal", 1))
sketch9.addConstraint(Sketcher.Constraint("Vertical", 2))
sketch9.addConstraint(Sketcher.Constraint("Horizontal", 3))
sketch9.addConstraint(Sketcher.Constraint("DistanceX", 1, 1, 1, 2, Q("5 mm")))
sketch9.addConstraint(Sketcher.Constraint("DistanceY", 0, 2, 0, 1, Q("26.5 mm")))
sketch9.addConstraint(Sketcher.Constraint("DistanceX", -1, 1, 0, 2, Q("20.25 mm")))
sketch9.addConstraint(Sketcher.Constraint("DistanceY", 0, 2, -1, 1, Q("11.75 mm")))
pocket5 = body2.newObject("PartDesign::Pocket", "Pocket004")
pocket5.Profile = sketch9
pocket5.Length = 2
doc.recompute()

fillet = body2.newObject("PartDesign::Fillet", "Fillet")
fillet.Base = (pocket5, edges_at(pocket5, [(20.25, 13.25, 3), (20.25, -10.25, 3)]))
fillet.Radius = 1.8
doc.recompute()

fillet2 = body2.newObject("PartDesign::Fillet", "Fillet001")
fillet2.Base = (fillet, edges_at(fillet, [(1.5, 15.75, -1)]))
fillet2.Radius = 0.9

doc.recompute()
